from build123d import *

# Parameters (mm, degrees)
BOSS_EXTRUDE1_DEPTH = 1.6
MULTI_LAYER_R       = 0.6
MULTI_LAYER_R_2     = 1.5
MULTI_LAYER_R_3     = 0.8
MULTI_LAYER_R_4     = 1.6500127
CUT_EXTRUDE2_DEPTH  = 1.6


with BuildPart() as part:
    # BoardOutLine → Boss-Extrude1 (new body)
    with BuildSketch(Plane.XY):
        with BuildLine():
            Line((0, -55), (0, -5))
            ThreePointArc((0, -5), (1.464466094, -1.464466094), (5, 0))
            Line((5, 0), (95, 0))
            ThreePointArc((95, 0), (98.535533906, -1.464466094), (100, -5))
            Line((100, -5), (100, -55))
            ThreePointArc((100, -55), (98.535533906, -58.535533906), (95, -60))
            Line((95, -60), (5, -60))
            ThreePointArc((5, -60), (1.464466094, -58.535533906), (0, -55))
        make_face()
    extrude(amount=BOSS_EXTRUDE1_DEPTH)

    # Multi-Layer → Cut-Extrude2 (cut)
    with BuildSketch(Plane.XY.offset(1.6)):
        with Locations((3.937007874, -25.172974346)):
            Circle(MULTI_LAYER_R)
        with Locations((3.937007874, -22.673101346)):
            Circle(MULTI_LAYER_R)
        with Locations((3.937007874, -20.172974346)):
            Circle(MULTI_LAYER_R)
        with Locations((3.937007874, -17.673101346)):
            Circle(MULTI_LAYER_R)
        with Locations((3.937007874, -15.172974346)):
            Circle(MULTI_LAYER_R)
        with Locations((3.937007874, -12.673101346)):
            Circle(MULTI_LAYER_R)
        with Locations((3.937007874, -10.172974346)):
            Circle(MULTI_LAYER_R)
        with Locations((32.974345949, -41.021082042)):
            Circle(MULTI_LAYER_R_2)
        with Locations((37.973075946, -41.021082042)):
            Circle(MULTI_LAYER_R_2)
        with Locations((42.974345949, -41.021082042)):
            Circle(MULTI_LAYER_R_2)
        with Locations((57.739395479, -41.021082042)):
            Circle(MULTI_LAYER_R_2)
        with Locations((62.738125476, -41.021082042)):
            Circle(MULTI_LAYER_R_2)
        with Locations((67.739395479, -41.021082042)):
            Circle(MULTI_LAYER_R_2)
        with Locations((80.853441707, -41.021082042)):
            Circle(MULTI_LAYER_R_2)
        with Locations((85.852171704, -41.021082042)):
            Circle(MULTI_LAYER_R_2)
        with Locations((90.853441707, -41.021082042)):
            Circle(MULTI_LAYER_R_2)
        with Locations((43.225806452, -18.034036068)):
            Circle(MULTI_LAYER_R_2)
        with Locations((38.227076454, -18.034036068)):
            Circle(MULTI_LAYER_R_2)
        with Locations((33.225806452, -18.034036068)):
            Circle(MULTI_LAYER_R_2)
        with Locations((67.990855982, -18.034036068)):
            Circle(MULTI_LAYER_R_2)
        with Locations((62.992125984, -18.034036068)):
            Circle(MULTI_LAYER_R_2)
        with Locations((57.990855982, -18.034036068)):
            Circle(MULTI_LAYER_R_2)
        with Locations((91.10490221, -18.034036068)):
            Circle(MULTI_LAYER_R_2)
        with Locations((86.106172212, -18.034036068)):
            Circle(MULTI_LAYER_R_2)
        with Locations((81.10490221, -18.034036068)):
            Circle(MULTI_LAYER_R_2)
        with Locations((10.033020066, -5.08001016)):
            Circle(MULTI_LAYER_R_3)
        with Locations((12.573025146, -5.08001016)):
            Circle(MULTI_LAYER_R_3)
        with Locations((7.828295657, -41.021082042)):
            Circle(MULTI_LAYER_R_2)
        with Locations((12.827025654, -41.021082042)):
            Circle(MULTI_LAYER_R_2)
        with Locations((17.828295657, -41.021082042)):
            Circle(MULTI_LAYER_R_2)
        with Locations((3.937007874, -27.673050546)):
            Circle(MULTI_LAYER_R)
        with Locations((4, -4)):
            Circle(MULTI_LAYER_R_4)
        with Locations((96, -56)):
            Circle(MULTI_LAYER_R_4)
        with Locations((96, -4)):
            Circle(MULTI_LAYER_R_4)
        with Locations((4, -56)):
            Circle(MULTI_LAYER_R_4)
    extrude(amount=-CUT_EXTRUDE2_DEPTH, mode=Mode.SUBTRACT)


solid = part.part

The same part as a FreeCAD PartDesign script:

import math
import FreeCAD as App
import Part
import Sketcher

V = App.Vector

doc = App.newDocument("Part")
body = doc.addObject("PartDesign::Body", "Body")

# Sketch on XY plane
sketch1 = doc.addObject("Sketcher::SketchObject", "Sketch")
body.addObject(sketch1)
sketch1.AttachmentSupport = (doc.XY_Plane, [""])
sketch1.MapMode = "FlatFace"
sketch1.addGeometry([
    Part.LineSegment(V(0, -5, 0), V(0, -55, 0)),  # 0
    Part.ArcOfCircle(Part.Circle(V(5, -55, 0), V(0, 0, 1), 5), math.radians(180), math.radians(270)),  # 1
    Part.LineSegment(V(5, -60, 0), V(95, -60, 0)),  # 2
    Part.ArcOfCircle(Part.Circle(V(95, -55, 0), V(0, 0, 1), 5), math.radians(-90), math.radians(0)),  # 3
    Part.LineSegment(V(100, -55, 0), V(100, -5, 0)),  # 4
    Part.ArcOfCircle(Part.Circle(V(95, -5, 0), V(0, 0, 1), 5), math.radians(0), math.radians(90)),  # 5
    Part.LineSegment(V(95, 0, 0), V(5, 0, 0)),  # 6
    Part.ArcOfCircle(Part.Circle(V(5, -5, 0), V(0, 0, 1), 5), math.radians(90), math.radians(180)),  # 7
], False)
sketch1.addConstraint([
    Sketcher.Constraint("Tangent", 0, 2, 1, 1),
    Sketcher.Constraint("Tangent", 1, 2, 2, 1),
    Sketcher.Constraint("Tangent", 2, 2, 3, 1),
    Sketcher.Constraint("Tangent", 3, 2, 4, 1),
    Sketcher.Constraint("Tangent", 4, 2, 5, 1),
    Sketcher.Constraint("Tangent", 5, 2, 6, 1),
    Sketcher.Constraint("Tangent", 6, 2, 7, 1),
    Sketcher.Constraint("Tangent", 7, 2, 0, 1),
    Sketcher.Constraint("Vertical", 0),
    Sketcher.Constraint("Horizontal", 2),
    Sketcher.Constraint("Vertical", 4),
    Sketcher.Constraint("Horizontal", 6),
    Sketcher.Constraint("Equal", 1, 3),
    Sketcher.Constraint("Equal", 3, 5),
    Sketcher.Constraint("Equal", 5, 7),
    Sketcher.Constraint("PointOnObject", 0, 2, -2),
    Sketcher.Constraint("PointOnObject", 5, 2, -1),
    Sketcher.Constraint("Radius", 1, 5.0),
    Sketcher.Constraint("DistanceX", 2, 1, 2, 2, 90.0),
    Sketcher.Constraint("DistanceY", 0, 2, 0, 1, 50.0),
])
pad1 = doc.addObject("PartDesign::Pad", "Pad")
body.addObject(pad1)
pad1.Profile = sketch1
pad1.Length = 1.6

# Sketch on XY plane
sketch2 = doc.addObject("Sketcher::SketchObject", "Sketch001")
body.addObject(sketch2)
sketch2.AttachmentSupport = (doc.XY_Plane, [""])
sketch2.MapMode = "FlatFace"
sketch2.AttachmentOffset = App.Placement(V(0, 0, 1.6), App.Rotation())
sketch2.addGeometry([
    Part.Circle(V(3.9, -25.2, 0), V(0, 0, 1), 0.6),  # 0
    Part.Circle(V(3.9, -22.7, 0), V(0, 0, 1), 0.6),  # 1
    Part.Circle(V(3.9, -20.2, 0), V(0, 0, 1), 0.6),  # 2
    Part.Circle(V(3.9, -17.7, 0), V(0, 0, 1), 0.6),  # 3
    Part.Circle(V(3.9, -15.2, 0), V(0, 0, 1), 0.6),  # 4
    Part.Circle(V(3.9, -12.7, 0), V(0, 0, 1), 0.6),  # 5
    Part.Circle(V(3.9, -10.2, 0), V(0, 0, 1), 0.6),  # 6
    Part.Circle(V(33, -41, 0), V(0, 0, 1), 1.5),  # 7
    Part.Circle(V(38, -41, 0), V(0, 0, 1), 1.5),  # 8
    Part.Circle(V(43, -41, 0), V(0, 0, 1), 1.5),  # 9
    Part.Circle(V(57.7, -41, 0), V(0, 0, 1), 1.5),  # 10
    Part.Circle(V(62.7, -41, 0), V(0, 0, 1), 1.5),  # 11
    Part.Circle(V(67.7, -41, 0), V(0, 0, 1), 1.5),  # 12
    Part.Circle(V(80.9, -41, 0), V(0, 0, 1), 1.5),  # 13
    Part.Circle(V(85.9, -41, 0), V(0, 0, 1), 1.5),  # 14
    Part.Circle(V(90.9, -41, 0), V(0, 0, 1), 1.5),  # 15
    Part.Circle(V(43.2, -18, 0), V(0, 0, 1), 1.5),  # 16
    Part.Circle(V(38.2, -18, 0), V(0, 0, 1), 1.5),  # 17
    Part.Circle(V(33.2, -18, 0), V(0, 0, 1), 1.5),  # 18
    Part.Circle(V(68, -18, 0), V(0, 0, 1), 1.5),  # 19
    Part.Circle(V(63, -18, 0), V(0, 0, 1), 1.5),  # 20
    Part.Circle(V(58, -18, 0), V(0, 0, 1), 1.5),  # 21
    Part.Circle(V(91.1, -18, 0), V(0, 0, 1), 1.5),  # 22
    Part.Circle(V(86.1, -18, 0), V(0, 0, 1), 1.5),  # 23
    Part.Circle(V(81.1, -18, 0), V(0, 0, 1), 1.5),  # 24
    Part.Circle(V(10, -5.1, 0), V(0, 0, 1), 0.8),  # 25
    Part.Circle(V(12.6, -5.1, 0), V(0, 0, 1), 0.8),  # 26
    Part.Circle(V(7.8, -41, 0), V(0, 0, 1), 1.5),  # 27
    Part.Circle(V(12.8, -41, 0), V(0, 0, 1), 1.5),  # 28
    Part.Circle(V(17.8, -41, 0), V(0, 0, 1), 1.5),  # 29
    Part.Circle(V(3.9, -27.7, 0), V(0, 0, 1), 0.6),  # 30
    Part.Circle(V(4, -4, 0), V(0, 0, 1), 1.7),  # 31
    Part.Circle(V(96, -56, 0), V(0, 0, 1), 1.7),  # 32
    Part.Circle(V(96, -4, 0), V(0, 0, 1), 1.7),  # 33
    Part.Circle(V(4, -56, 0), V(0, 0, 1), 1.7),  # 34
], False)
sketch2.addConstraint([
    Sketcher.Constraint("Equal", 0, 1),
    Sketcher.Constraint("Equal", 1, 2),
    Sketcher.Constraint("Equal", 2, 3),
    Sketcher.Constraint("Equal", 3, 4),
    Sketcher.Constraint("Equal", 4, 5),
    Sketcher.Constraint("Equal", 5, 6),
    Sketcher.Constraint("Equal", 7, 8),
    Sketcher.Constraint("Equal", 8, 9),
    Sketcher.Constraint("Equal", 9, 10),
    Sketcher.Constraint("Equal", 10, 11),
    Sketcher.Constraint("Equal", 11, 12),
    Sketcher.Constraint("Equal", 12, 13),
    Sketcher.Constraint("Equal", 13, 14),
    Sketcher.Constraint("Equal", 14, 15),
    Sketcher.Constraint("Equal", 15, 16),
    Sketcher.Constraint("Equal", 16, 17),
    Sketcher.Constraint("Equal", 17, 18),
    Sketcher.Constraint("Equal", 18, 19),
    Sketcher.Constraint("Equal", 19, 20),
    Sketcher.Constraint("Equal", 20, 21),
    Sketcher.Constraint("Equal", 21, 22),
    Sketcher.Constraint("Equal", 22, 23),
    Sketcher.Constraint("Equal", 23, 24),
    Sketcher.Constraint("Equal", 25, 26),
    Sketcher.Constraint("Equal", 24, 27),
    Sketcher.Constraint("Equal", 27, 28),
    Sketcher.Constraint("Equal", 28, 29),
    Sketcher.Constraint("Equal", 6, 30),
    Sketcher.Constraint("Equal", 31, 32),
    Sketcher.Constraint("Equal", 32, 33),
    Sketcher.Constraint("Equal", 33, 34),
    Sketcher.Constraint("Horizontal", 7, 3, 8, 3),
    Sketcher.Constraint("Horizontal", 8, 3, 9, 3),
    Sketcher.Constraint("Horizontal", 9, 3, 10, 3),
    Sketcher.Constraint("Horizontal", 10, 3, 11, 3),
    Sketcher.Constraint("Horizontal", 11, 3, 12, 3),
    Sketcher.Constraint("Horizontal", 12, 3, 13, 3),
    Sketcher.Constraint("Horizontal", 13, 3, 14, 3),
    Sketcher.Constraint("Horizontal", 14, 3, 15, 3),
    Sketcher.Constraint("Horizontal", 16, 3, 17, 3),
    Sketcher.Constraint("Horizontal", 17, 3, 18, 3),
    Sketcher.Constraint("Horizontal", 18, 3, 19, 3),
    Sketcher.Constraint("Horizontal", 19, 3, 20, 3),
    Sketcher.Constraint("Horizontal", 20, 3, 21, 3),
    Sketcher.Constraint("Horizontal", 21, 3, 22, 3),
    Sketcher.Constraint("Horizontal", 22, 3, 23, 3),
    Sketcher.Constraint("Horizontal", 23, 3, 24, 3),
    Sketcher.Constraint("Horizontal", 25, 3, 26, 3),
    Sketcher.Constraint("Horizontal", 15, 3, 27, 3),
    Sketcher.Constraint("Horizontal", 27, 3, 28, 3),
    Sketcher.Constraint("Horizontal", 28, 3, 29, 3),
    Sketcher.Constraint("Horizontal", 31, 3, 33, 3),
    Sketcher.Constraint("Horizontal", 32, 3, 34, 3),
    Sketcher.Constraint("Vertical", 0, 3, 1, 3),
    Sketcher.Constraint("Vertical", 1, 3, 2, 3),
    Sketcher.Constraint("Vertical", 2, 3, 3, 3),
    Sketcher.Constraint("Vertical", 3, 3, 4, 3),
    Sketcher.Constraint("Vertical", 4, 3, 5, 3),
    Sketcher.Constraint("Vertical", 5, 3, 6, 3),
    Sketcher.Constraint("Vertical", 6, 3, 30, 3),
    Sketcher.Constraint("Vertical", 32, 3, 33, 3),
    Sketcher.Constraint("Vertical", 31, 3, 34, 3),
    Sketcher.Constraint("Diameter", 7, 3.0),
    Sketcher.Constraint("Diameter", 0, 1.2),
    Sketcher.Constraint("Diameter", 25, 1.6),
    Sketcher.Constraint("DistanceX", -1, 1, 31, 3, 4.0),
    Sketcher.Constraint("DistanceY", 31, 3, -1, 1, 4.0),
    Sketcher.Constraint("DistanceX", -1, 1, 32, 3, 96.0),
    Sketcher.Constraint("DistanceY", 32, 3, -1, 1, 56.0),
    Sketcher.Constraint("DistanceY", 0, 3, 2, 3, 5.0),
    Sketcher.Constraint("DistanceY", 1, 3, 3, 3, 5.0),
    Sketcher.Constraint("DistanceY", 2, 3, 4, 3, 5.0),
    Sketcher.Constraint("DistanceY", 3, 3, 5, 3, 5.0),
    Sketcher.Constraint("DistanceY", 4, 3, 6, 3, 5.0),
    Sketcher.Constraint("DistanceX", 7, 3, 9, 3, 10.0),
    Sketcher.Constraint("DistanceX", 10, 3, 12, 3, 10.0),
    Sketcher.Constraint("DistanceX", 13, 3, 15, 3, 10.0),
    Sketcher.Constraint("DistanceX", 18, 3, 16, 3, 10.0),
    Sketcher.Constraint("DistanceX", 21, 3, 19, 3, 10.0),
    Sketcher.Constraint("DistanceX", 24, 3, 22, 3, 10.0),
    Sketcher.Constraint("DistanceX", 27, 3, 29, 3, 10.0),
    Sketcher.Constraint("Diameter", 31, 3.300025),
    Sketcher.Constraint("DistanceX", 8, 3, 17, 3, 0.254001),
    Sketcher.Constraint("DistanceX", 11, 3, 20, 3, 0.254001),
    Sketcher.Constraint("DistanceX", 14, 3, 23, 3, 0.254001),
    Sketcher.Constraint("DistanceY", 1, 3, -1, 1, 22.673101),
    Sketcher.Constraint("DistanceX", -1, 1, 13, 3, 80.853442),
    Sketcher.Constraint("DistanceX", -1, 1, 14, 3, 85.852172),
    Sketcher.Constraint("DistanceX", -1, 1, 25, 3, 10.03302),
    Sketcher.Constraint("DistanceY", 25, 3, -1, 1, 5.08001),
    Sketcher.Constraint("DistanceY", 30, 3, -1, 1, 27.673051),
    Sketcher.Constraint("DistanceX", 0, 3, 7, 3, 29.037338),
    Sketcher.Constraint("DistanceY", 7, 3, 1, 3, 18.347981),
    Sketcher.Constraint("DistanceX", 7, 3, 8, 3, 4.99873),
    Sketcher.Constraint("DistanceX", 9, 3, 10, 3, 14.76505),
    Sketcher.Constraint("DistanceX", 10, 3, 11, 3, 4.99873),
    Sketcher.Constraint("DistanceX", 9, 3, 16, 3, 0.251461),
    Sketcher.Constraint("DistanceX", 12, 3, 19, 3, 0.251461),
    Sketcher.Constraint("DistanceX", 15, 3, 22, 3, 0.251461),
    Sketcher.Constraint("DistanceX", 27, 3, 7, 3, 25.14605),
    Sketcher.Constraint("DistanceX", 27, 3, 28, 3, 4.99873),
    Sketcher.Constraint("DistanceX", -1, 1, 0, 3, 3.937008),
    Sketcher.Constraint("DistanceY", 0, 3, -1, 1, 25.172974),
    Sketcher.Constraint("DistanceY", 16, 3, -1, 1, 18.034036),
    Sketcher.Constraint("DistanceX", -1, 1, 26, 3, 12.573025),
])
pocket1 = doc.addObject("PartDesign::Pocket", "Pocket")
body.addObject(pocket1)
pocket1.Profile = sketch2
pocket1.Length = 1.6

doc.recompute()
